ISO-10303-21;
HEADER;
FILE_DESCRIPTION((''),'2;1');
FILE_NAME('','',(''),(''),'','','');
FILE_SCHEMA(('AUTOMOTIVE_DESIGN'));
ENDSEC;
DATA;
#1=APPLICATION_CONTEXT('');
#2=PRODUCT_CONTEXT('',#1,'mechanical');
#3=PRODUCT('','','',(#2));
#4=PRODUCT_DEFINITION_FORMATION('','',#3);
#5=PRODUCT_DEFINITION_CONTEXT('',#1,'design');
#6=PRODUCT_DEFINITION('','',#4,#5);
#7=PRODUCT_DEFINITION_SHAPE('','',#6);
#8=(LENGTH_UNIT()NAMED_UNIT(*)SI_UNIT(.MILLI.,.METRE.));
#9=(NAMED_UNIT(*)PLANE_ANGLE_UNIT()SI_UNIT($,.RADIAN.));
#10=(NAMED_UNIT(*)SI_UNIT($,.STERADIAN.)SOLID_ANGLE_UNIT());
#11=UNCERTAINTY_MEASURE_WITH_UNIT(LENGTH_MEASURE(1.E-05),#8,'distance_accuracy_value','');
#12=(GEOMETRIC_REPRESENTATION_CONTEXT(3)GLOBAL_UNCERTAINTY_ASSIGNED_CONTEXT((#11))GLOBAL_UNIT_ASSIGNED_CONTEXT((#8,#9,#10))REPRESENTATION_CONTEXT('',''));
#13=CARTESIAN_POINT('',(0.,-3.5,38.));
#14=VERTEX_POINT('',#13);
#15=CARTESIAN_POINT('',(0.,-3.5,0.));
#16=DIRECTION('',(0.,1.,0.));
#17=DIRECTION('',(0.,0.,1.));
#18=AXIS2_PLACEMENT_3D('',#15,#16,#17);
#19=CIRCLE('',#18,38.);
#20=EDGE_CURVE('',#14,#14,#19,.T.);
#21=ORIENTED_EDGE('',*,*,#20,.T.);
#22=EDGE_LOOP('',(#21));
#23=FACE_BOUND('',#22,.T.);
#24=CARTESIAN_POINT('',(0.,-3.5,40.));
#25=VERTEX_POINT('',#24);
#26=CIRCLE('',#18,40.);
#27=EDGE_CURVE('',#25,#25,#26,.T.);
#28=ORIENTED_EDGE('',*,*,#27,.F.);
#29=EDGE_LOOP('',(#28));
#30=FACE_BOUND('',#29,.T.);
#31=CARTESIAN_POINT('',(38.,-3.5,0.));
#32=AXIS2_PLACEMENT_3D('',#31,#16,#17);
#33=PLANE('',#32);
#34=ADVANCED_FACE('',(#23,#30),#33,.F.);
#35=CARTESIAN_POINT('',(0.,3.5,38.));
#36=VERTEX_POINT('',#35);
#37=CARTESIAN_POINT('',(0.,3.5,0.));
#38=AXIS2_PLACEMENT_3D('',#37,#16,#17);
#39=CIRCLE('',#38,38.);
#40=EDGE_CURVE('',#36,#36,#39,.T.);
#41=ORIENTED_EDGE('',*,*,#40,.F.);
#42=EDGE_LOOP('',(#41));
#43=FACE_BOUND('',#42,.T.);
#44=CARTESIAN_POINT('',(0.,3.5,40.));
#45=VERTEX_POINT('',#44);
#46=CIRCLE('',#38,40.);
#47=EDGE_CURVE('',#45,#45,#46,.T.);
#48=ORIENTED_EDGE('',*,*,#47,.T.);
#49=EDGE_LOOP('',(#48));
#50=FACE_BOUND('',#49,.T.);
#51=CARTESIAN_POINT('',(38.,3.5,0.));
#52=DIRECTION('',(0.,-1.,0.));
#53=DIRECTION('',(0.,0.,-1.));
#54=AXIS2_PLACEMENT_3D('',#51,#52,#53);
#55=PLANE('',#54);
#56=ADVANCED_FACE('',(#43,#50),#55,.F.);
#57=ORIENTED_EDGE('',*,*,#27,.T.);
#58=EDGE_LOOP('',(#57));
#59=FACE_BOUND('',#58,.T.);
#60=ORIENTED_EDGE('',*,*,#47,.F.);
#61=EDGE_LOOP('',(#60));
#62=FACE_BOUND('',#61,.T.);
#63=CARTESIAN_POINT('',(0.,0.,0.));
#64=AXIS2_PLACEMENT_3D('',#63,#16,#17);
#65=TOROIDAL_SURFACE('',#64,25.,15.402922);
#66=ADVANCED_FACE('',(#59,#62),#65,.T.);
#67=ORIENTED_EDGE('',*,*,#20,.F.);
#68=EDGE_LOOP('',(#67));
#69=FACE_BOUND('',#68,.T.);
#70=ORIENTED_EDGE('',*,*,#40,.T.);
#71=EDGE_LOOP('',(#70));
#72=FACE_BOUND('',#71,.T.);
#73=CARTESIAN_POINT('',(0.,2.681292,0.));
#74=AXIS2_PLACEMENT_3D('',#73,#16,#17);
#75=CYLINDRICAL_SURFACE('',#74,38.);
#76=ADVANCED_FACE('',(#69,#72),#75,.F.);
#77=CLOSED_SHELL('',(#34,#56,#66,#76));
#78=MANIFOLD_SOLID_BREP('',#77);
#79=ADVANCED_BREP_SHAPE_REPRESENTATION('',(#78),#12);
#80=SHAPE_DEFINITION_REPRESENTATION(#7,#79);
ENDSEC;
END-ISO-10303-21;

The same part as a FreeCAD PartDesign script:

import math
import FreeCAD as App
import Part
import Sketcher

doc = App.newDocument("Part")
body = doc.addObject("PartDesign::Body", "Body")

sketch1 = body.newObject("Sketcher::SketchObject", "Sketch")
sketch1.AttachmentSupport = (doc.getObject("XY_Plane"), [""])
sketch1.MapMode = "FlatFace"
sketch1.addGeometry([
    Part.LineSegment(App.Vector(40, 3.5, 0), App.Vector(38, 3.5, 0)),
    Part.LineSegment(App.Vector(38, 3.5, 0), App.Vector(38, -3.5, 0)),
    Part.LineSegment(App.Vector(38, -3.5, 0), App.Vector(40, -3.5, 0)),
    Part.ArcOfCircle(Part.Circle(App.Vector(25, 0, 0), App.Vector(0, 0, 1), 15.4), math.radians(-13), math.radians(13)),
], False)
sketch1.addConstraint([
    Sketcher.Constraint("Coincident", 0, 2, 1, 1),
    Sketcher.Constraint("Coincident", 1, 2, 2, 1),
    Sketcher.Constraint("Coincident", 2, 2, 3, 1),
    Sketcher.Constraint("Coincident", 3, 2, 0, 1),
    Sketcher.Constraint("Horizontal", 0),
    Sketcher.Constraint("Vertical", 1),
    Sketcher.Constraint("Horizontal", 2),
    Sketcher.Constraint("Symmetric", 2, 2, 3, 2, -1),
    Sketcher.Constraint("DistanceX", 0, 2, 0, 1, 2.0),
    Sketcher.Constraint("DistanceY", 1, 2, 1, 1, 7.0),
    Sketcher.Constraint("DistanceX", -1, 1, 3, 3, 25.0),
    Sketcher.Constraint("DistanceX", -1, 1, 0, 2, 38.0),
])
revolution = body.newObject("PartDesign::Revolution", "Revolution")
revolution.Profile = sketch1
revolution.ReferenceAxis = (sketch1, ["V_Axis"])
revolution.Angle = 360

doc.recompute()
